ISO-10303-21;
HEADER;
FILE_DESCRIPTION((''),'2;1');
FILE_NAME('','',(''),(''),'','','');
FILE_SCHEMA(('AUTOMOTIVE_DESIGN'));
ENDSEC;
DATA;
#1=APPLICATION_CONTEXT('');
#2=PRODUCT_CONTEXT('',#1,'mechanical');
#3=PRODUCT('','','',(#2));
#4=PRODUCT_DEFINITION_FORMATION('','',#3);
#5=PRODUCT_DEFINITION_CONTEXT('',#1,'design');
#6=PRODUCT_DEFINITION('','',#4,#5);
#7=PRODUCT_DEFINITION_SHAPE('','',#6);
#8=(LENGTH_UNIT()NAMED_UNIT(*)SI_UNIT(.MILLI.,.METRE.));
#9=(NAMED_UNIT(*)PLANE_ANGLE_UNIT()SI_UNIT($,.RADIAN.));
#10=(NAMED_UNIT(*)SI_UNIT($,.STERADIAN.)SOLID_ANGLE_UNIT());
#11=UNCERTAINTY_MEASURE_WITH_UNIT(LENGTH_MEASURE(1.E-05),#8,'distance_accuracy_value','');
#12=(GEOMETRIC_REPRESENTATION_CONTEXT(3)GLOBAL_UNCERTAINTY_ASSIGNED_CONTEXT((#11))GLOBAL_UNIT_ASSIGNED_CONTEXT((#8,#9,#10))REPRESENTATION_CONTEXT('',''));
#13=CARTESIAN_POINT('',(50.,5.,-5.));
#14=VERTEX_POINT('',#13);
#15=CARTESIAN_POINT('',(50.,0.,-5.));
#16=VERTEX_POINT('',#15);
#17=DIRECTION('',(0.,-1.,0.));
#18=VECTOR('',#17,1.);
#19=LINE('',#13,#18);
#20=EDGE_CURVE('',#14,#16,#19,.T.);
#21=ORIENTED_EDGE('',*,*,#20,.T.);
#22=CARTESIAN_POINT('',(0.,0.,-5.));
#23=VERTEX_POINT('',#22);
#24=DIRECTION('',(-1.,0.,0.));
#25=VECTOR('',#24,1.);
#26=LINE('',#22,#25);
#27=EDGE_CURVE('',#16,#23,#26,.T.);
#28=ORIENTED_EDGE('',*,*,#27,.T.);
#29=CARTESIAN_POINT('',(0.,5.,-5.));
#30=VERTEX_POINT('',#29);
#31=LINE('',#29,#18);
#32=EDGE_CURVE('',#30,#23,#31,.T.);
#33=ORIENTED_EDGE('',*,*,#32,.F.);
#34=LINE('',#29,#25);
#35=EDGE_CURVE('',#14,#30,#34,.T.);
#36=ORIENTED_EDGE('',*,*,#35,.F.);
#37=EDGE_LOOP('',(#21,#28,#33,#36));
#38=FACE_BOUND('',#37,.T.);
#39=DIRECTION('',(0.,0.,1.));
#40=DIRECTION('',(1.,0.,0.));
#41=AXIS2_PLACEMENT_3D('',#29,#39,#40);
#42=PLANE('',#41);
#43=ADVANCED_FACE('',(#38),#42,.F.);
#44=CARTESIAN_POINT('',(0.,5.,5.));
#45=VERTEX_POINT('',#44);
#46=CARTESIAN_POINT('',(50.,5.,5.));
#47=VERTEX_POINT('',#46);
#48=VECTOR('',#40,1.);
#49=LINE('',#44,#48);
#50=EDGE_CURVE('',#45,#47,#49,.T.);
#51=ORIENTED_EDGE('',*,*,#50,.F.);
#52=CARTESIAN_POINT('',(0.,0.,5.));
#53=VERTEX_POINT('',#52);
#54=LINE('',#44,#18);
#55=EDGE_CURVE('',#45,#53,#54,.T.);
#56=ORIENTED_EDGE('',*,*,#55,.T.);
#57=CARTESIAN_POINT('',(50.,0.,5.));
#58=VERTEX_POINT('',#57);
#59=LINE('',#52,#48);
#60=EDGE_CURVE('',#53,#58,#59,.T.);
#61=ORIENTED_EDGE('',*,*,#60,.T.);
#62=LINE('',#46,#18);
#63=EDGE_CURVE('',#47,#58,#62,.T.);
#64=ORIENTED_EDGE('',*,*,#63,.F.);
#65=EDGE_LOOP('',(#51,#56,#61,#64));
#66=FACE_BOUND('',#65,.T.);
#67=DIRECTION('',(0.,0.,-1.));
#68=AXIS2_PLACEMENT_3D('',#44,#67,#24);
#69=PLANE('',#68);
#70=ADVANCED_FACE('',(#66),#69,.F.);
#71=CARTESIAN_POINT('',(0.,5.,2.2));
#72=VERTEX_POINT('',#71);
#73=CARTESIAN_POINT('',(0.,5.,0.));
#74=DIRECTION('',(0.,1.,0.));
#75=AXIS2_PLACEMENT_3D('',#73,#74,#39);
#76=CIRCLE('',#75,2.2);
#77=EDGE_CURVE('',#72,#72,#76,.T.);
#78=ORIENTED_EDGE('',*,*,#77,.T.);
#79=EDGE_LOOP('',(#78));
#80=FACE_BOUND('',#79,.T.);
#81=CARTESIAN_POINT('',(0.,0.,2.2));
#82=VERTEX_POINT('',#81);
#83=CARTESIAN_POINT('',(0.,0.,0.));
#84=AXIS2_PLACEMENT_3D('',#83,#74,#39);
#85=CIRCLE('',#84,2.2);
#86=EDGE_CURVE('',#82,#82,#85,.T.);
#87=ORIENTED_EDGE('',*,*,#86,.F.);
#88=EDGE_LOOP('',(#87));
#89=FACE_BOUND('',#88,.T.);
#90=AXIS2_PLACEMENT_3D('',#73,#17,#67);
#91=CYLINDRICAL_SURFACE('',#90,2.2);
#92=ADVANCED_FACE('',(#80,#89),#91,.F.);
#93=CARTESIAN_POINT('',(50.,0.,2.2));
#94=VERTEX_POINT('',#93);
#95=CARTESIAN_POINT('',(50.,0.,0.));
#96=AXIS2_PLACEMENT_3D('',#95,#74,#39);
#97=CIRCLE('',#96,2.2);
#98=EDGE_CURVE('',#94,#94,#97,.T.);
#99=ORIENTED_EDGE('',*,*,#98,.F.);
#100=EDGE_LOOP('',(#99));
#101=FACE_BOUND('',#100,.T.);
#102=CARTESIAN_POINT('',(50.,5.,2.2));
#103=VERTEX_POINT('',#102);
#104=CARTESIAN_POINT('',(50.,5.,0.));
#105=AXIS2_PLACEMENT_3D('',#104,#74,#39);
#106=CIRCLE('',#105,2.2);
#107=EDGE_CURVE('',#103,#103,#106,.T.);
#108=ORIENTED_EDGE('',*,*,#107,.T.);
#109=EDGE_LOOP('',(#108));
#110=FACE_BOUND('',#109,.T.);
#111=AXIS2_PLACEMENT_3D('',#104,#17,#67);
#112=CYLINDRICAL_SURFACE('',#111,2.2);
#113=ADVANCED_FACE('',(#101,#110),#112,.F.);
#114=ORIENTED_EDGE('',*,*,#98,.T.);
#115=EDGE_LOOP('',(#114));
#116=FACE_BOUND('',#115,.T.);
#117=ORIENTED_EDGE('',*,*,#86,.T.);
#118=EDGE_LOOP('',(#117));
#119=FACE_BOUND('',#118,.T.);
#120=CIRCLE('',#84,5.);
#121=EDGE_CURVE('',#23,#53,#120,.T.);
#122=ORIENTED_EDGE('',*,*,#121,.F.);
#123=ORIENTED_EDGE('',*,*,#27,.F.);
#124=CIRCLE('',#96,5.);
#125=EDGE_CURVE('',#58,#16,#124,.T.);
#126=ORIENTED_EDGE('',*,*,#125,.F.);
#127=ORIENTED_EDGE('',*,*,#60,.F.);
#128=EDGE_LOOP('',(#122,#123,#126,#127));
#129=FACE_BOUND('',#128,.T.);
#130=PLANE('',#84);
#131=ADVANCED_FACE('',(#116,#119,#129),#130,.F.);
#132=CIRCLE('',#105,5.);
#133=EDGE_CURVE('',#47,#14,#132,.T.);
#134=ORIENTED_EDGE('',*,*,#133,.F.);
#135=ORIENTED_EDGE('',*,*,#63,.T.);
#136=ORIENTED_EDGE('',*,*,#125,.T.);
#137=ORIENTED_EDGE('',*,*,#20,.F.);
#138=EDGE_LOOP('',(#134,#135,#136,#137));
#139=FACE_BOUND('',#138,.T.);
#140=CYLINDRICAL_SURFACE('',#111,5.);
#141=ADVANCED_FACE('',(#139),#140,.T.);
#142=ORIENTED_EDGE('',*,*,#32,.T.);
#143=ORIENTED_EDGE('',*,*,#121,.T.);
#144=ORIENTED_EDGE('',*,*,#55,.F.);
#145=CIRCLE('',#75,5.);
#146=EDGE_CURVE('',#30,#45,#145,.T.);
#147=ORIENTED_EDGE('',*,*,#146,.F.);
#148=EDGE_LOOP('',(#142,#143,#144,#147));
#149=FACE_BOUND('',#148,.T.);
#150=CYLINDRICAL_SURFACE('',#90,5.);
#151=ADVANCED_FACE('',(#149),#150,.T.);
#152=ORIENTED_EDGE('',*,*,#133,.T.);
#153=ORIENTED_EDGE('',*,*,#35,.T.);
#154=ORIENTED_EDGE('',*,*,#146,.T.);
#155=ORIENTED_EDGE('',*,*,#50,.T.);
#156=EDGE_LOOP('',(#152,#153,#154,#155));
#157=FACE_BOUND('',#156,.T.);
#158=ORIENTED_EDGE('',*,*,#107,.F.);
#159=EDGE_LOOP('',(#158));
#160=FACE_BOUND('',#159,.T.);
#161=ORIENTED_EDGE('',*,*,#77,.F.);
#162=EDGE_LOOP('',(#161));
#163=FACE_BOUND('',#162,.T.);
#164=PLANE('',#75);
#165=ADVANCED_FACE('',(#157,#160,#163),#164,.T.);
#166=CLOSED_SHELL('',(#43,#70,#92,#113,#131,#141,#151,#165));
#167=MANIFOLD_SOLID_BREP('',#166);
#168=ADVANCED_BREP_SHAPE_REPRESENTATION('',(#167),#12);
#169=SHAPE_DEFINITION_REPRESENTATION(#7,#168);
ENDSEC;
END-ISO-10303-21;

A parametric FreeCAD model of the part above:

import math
import FreeCAD as App
import Part
import Sketcher

V = App.Vector

doc = App.newDocument("Part")
body = doc.addObject("PartDesign::Body", "Body")

# Sketch on XZ plane
sketch1 = body.newObject("Sketcher::SketchObject", "Sketch")
sketch1.AttachmentSupport = (doc.getObject("XZ_Plane"), [""])
sketch1.MapMode = "FlatFace"
sketch1.addGeometry([
    Part.LineSegment(V(50, -5, 0), V(0, -5, 0)),  # 0
    Part.ArcOfCircle(Part.Circle(V(0, 0, 0), V(0, 0, 1), 5), math.radians(90), math.radians(270)),  # 1
    Part.LineSegment(V(0, 5, 0), V(50, 5, 0)),  # 2
    Part.ArcOfCircle(Part.Circle(V(50, 0, 0), V(0, 0, 1), 5), math.radians(-90), math.radians(90)),  # 3
    Part.Circle(V(50, 0, 0), V(0, 0, 1), 2.2),  # 4
    Part.Circle(V(0, 0, 0), V(0, 0, 1), 2.2),  # 5
], False)
sketch1.addConstraint([
    Sketcher.Constraint("Tangent", 0, 2, 1, 2),
    Sketcher.Constraint("Tangent", 1, 1, 2, 1),
    Sketcher.Constraint("Tangent", 2, 2, 3, 2),
    Sketcher.Constraint("Tangent", 3, 1, 0, 1),
    Sketcher.Constraint("Horizontal", 0),
    Sketcher.Constraint("Horizontal", 2),
    Sketcher.Constraint("Coincident", 1, 3, -1, 1),
    Sketcher.Constraint("Coincident", 5, 3, -1, 1),
    Sketcher.Constraint("Coincident", 4, 3, 3, 3),
    Sketcher.Constraint("Equal", 4, 5),
    Sketcher.Constraint("Radius", 1, 5.0),
    Sketcher.Constraint("Diameter", 4, 4.4),
    Sketcher.Constraint("DistanceX", 0, 2, 0, 1, 50.0),
])
pad1 = body.newObject("PartDesign::Pad", "Pad")
pad1.Profile = sketch1
pad1.Length = 5
pad1.Reversed = True

doc.recompute()
